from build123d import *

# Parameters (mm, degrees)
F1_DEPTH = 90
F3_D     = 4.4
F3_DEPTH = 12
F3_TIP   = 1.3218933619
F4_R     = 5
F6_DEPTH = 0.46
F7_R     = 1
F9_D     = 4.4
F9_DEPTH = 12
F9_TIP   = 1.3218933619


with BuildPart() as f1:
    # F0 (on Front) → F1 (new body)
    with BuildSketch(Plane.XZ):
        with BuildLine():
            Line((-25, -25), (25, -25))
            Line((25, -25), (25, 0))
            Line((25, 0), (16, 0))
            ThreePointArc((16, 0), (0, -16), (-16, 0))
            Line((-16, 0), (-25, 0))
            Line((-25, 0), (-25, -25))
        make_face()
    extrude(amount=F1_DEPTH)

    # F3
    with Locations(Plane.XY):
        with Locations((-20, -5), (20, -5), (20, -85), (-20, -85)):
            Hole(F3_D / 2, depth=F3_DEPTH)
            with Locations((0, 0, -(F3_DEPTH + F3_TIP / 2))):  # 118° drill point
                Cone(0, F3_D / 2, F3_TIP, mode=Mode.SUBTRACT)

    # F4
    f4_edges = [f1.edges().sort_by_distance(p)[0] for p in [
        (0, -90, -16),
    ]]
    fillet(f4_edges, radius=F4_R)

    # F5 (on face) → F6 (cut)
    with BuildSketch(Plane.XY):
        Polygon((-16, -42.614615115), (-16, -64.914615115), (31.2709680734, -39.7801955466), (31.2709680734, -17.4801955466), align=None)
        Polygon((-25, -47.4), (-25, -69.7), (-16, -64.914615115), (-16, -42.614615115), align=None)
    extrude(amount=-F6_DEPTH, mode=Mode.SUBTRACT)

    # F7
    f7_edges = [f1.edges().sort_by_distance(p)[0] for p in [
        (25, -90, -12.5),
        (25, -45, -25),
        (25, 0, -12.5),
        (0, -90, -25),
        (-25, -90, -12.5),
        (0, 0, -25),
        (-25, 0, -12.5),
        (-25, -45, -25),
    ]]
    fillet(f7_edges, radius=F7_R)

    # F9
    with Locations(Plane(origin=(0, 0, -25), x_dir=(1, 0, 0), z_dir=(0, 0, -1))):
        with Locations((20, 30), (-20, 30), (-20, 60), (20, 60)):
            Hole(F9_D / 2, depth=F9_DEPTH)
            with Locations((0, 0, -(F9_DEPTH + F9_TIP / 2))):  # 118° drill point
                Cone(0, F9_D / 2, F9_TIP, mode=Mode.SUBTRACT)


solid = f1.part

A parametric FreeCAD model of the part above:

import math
import FreeCAD as App
import Part
import Sketcher

V = App.Vector
Q = App.Units.Quantity


def edges_at(feature, points):
    """Names of the edges that pass closest to the given points."""
    edges = feature.Shape.Edges
    near = lambda p: min(range(len(edges)), key=lambda i: edges[i].distToShape(Part.Vertex(*p))[0])
    return sorted({f"Edge{near(p) + 1}" for p in points})


def add_polygon(sketch, points):
    """Adds a closed chain of lines whose ends are joined by coincident constraints."""
    first, n = sketch.GeometryCount, len(points)
    for a, b in zip(points, points[1:] + points[:1]):
        sketch.addGeometry(Part.LineSegment(App.Vector(*a, 0), App.Vector(*b, 0)), False)
    for i in range(n):
        sketch.addConstraint(Sketcher.Constraint("Coincident", first + i, 2, first + (i + 1) % n, 1))

doc = App.newDocument("Part")
params = doc.addObject("Spreadsheet::Sheet", "Params")
for row, (alias, value) in enumerate([
    ("sketch1_radius", "16 mm"),
    ("sketch1_width", "50 mm"),
    ("sketch1_height", "25 mm"),
    ("pad1_length", "90 mm"),
    ("sketch2_diameter", "4.4 mm"),
    ("hole_diameter", "4.4 mm"),
    ("hole_depth", "12 mm"),
    ("fillet_radius", "5 mm"),
    ("sketch3_height", "22.3 mm"),
    ("pocket1_length", "0.46 mm"),
    ("fillet2_radius", "1 mm"),
    ("sketch4_diameter", "4.4 mm"),
    ("hole2_diameter", "4.4 mm"),
    ("hole2_depth", "12 mm"),
], start=1):
    params.set(f"A{row}", alias)
    params.set(f"B{row}", "=" + value)
    params.setAlias(f"B{row}", alias)

body = doc.addObject("PartDesign::Body", "Body")

sketch1 = doc.addObject("Sketcher::SketchObject", "Sketch")
body.addObject(sketch1)
sketch1.AttachmentSupport = (doc.XZ_Plane, [""])
sketch1.MapMode = "FlatFace"
sketch1.addGeometry(Part.LineSegment(V(-25, -25, 0), V(25, -25, 0)), False)
sketch1.addGeometry(Part.LineSegment(V(25, -25, 0), V(25, 0, 0)), False)
sketch1.addGeometry(Part.LineSegment(V(25, 0, 0), V(16, 0, 0)), False)
sketch1.addGeometry(Part.ArcOfCircle(Part.Circle(V(0, 0, 0), V(0, 0, 1), 16), math.radians(180), math.radians(360)), False)
sketch1.addGeometry(Part.LineSegment(V(-16, 0, 0), V(-25, 0, 0)), False)
sketch1.addGeometry(Part.LineSegment(V(-25, 0, 0), V(-25, -25, 0)), False)
sketch1.addConstraint(Sketcher.Constraint("Coincident", 0, 2, 1, 1))
sketch1.addConstraint(Sketcher.Constraint("Coincident", 1, 2, 2, 1))
sketch1.addConstraint(Sketcher.Constraint("Coincident", 2, 2, 3, 2))
sketch1.addConstraint(Sketcher.Constraint("Coincident", 3, 1, 4, 1))
sketch1.addConstraint(Sketcher.Constraint("Coincident", 4, 2, 5, 1))
sketch1.addConstraint(Sketcher.Constraint("Coincident", 5, 2, 0, 1))
sketch1.addConstraint(Sketcher.Constraint("Horizontal", 0))
sketch1.addConstraint(Sketcher.Constraint("Vertical", 1))
sketch1.addConstraint(Sketcher.Constraint("Horizontal", 2))
sketch1.addConstraint(Sketcher.Constraint("Horizontal", 4))
sketch1.addConstraint(Sketcher.Constraint("Vertical", 5))
sketch1.addConstraint(Sketcher.Constraint("Coincident", 3, 3, -1, 1))
sketch1.addConstraint(Sketcher.Constraint("Symmetric", 1, 2, 4, 2, -1, 1))
sketch1.addConstraint(Sketcher.Constraint("PointOnObject", 1, 2, -1))
sketch1.addConstraint(Sketcher.Constraint("Radius", 3, Q("16 mm")))
sketch1.addConstraint(Sketcher.Constraint("DistanceX", 0, 1, 0, 2, Q("50 mm")))
sketch1.addConstraint(Sketcher.Constraint("DistanceY", 1, 1, 1, 2, Q("25 mm")))
sketch1.setExpression("Constraints[14]", "Params.sketch1_radius")
sketch1.setExpression("Constraints[15]", "Params.sketch1_width")
sketch1.setExpression("Constraints[16]", "Params.sketch1_height")
pad1 = doc.addObject("PartDesign::Pad", "Pad")
body.addObject(pad1)
pad1.Profile = sketch1
pad1.setExpression("Length", "Params.pad1_length")

sketch2 = doc.addObject("Sketcher::SketchObject", "Sketch001")
body.addObject(sketch2)
sketch2.AttachmentSupport = (doc.XY_Plane, [""])
sketch2.MapMode = "FlatFace"
sketch2.addGeometry(Part.Circle(V(-20, -5, 0), V(0, 0, 1), 2.2), False)
sketch2.addGeometry(Part.Circle(V(20, -5, 0), V(0, 0, 1), 2.2), False)
sketch2.addGeometry(Part.Circle(V(20, -85, 0), V(0, 0, 1), 2.2), False)
sketch2.addGeometry(Part.Circle(V(-20, -85, 0), V(0, 0, 1), 2.2), False)
sketch2.addConstraint(Sketcher.Constraint("Equal", 0, 1))
sketch2.addConstraint(Sketcher.Constraint("Equal", 1, 2))
sketch2.addConstraint(Sketcher.Constraint("Equal", 2, 3))
sketch2.addConstraint(Sketcher.Constraint("Symmetric", 0, 3, 1, 3, -2))
sketch2.addConstraint(Sketcher.Constraint("Symmetric", 2, 3, 3, 3, -2))
sketch2.addConstraint(Sketcher.Constraint("Vertical", 1, 3, 2, 3))
sketch2.addConstraint(Sketcher.Constraint("Diameter", 0, Q("4.4 mm")))
sketch2.addConstraint(Sketcher.Constraint("DistanceX", 0, 3, -1, 1, Q("20 mm")))
sketch2.addConstraint(Sketcher.Constraint("DistanceY", 0, 3, -1, 1, Q("5 mm")))
sketch2.addConstraint(Sketcher.Constraint("DistanceY", 2, 3, -1, 1, Q("85 mm")))
sketch2.setExpression("Constraints[6]", "Params.sketch2_diameter")
doc.recompute()
hole = doc.addObject("PartDesign::Hole", "Hole")
body.addObject(hole)
hole.Profile = sketch2
hole.ThreadType = "None"
hole.setExpression("Diameter", "Params.hole_diameter")
hole.DepthType = "Dimension"
hole.setExpression("Depth", "Params.hole_depth")
hole.DrillPoint = "Angled"
hole.DrillPointAngle = 118
doc.recompute()

fillet = doc.addObject("PartDesign::Fillet", "Fillet")
body.addObject(fillet)
fillet.Base = (hole, edges_at(hole, [(0, -90, -16)]))
fillet.setExpression("Radius", "Params.fillet_radius")

sketch3 = doc.addObject("Sketcher::SketchObject", "Sketch002")
body.addObject(sketch3)
sketch3.AttachmentSupport = (doc.XY_Plane, [""])
sketch3.MapMode = "FlatFace"
add_polygon(sketch3, [(-16, -65), (31, -40), (31, -17), (-16, -43), (-25, -47), (-25, -70)])
sketch3.addConstraint(Sketcher.Constraint("Vertical", 1))
sketch3.addConstraint(Sketcher.Constraint("Vertical", 4))
sketch3.addConstraint(Sketcher.Constraint("Parallel", 0, 2))
sketch3.addConstraint(Sketcher.Constraint("Parallel", 2, 3))
sketch3.addConstraint(Sketcher.Constraint("Parallel", 3, 5))
sketch3.addConstraint(Sketcher.Constraint("Vertical", 2, 2, 5, 2))
sketch3.addConstraint(Sketcher.Constraint("Angle", 0, Q("28 deg")))
sketch3.addConstraint(Sketcher.Constraint("DistanceY", 1, 1, 1, 2, Q("22.3 mm")))
sketch3.addConstraint(Sketcher.Constraint("DistanceX", 2, 2, -1, 1, Q("16 mm")))
sketch3.addConstraint(Sketcher.Constraint("DistanceX", 3, 2, -1, 1, Q("25 mm")))
sketch3.addConstraint(Sketcher.Constraint("DistanceY", 3, 2, -1, 1, Q("47.4 mm")))
sketch3.addConstraint(Sketcher.Constraint("DistanceX", -1, 1, 0, 2, Q("31.270968 mm")))
sketch3.setExpression("Constraints[13]", "Params.sketch3_height")
pocket1 = doc.addObject("PartDesign::Pocket", "Pocket")
body.addObject(pocket1)
pocket1.Profile = sketch3
pocket1.setExpression("Length", "Params.pocket1_length")
doc.recompute()

fillet2 = doc.addObject("PartDesign::Fillet", "Fillet001")
body.addObject(fillet2)
fillet2.Base = (pocket1, edges_at(pocket1, [
    (25, -90, -12.5),
    (25, -45, -25),
    (25, 0, -12.5),
    (0, -90, -25),
    (-25, -90, -12.5),
    (0, 0, -25),
    (-25, 0, -12.5),
    (-25, -45, -25),
]))
fillet2.setExpression("Radius", "Params.fillet2_radius")

sketch4 = doc.addObject("Sketcher::SketchObject", "Sketch003")
body.addObject(sketch4)
sketch4.AttachmentSupport = (doc.XY_Plane, [""])
sketch4.MapMode = "FlatFace"
sketch4.AttachmentOffset = App.Placement(V(0, 0, -25), App.Rotation())
sketch4.addGeometry(Part.Circle(V(20, -30, 0), V(0, 0, 1), 2.2), False)
sketch4.addGeometry(Part.Circle(V(-20, -30, 0), V(0, 0, 1), 2.2), False)
sketch4.addGeometry(Part.Circle(V(-20, -60, 0), V(0, 0, 1), 2.2), False)
sketch4.addGeometry(Part.Circle(V(20, -60, 0), V(0, 0, 1), 2.2), False)
sketch4.addConstraint(Sketcher.Constraint("Equal", 0, 1))
sketch4.addConstraint(Sketcher.Constraint("Equal", 1, 2))
sketch4.addConstraint(Sketcher.Constraint("Equal", 2, 3))
sketch4.addConstraint(Sketcher.Constraint("Symmetric", 0, 3, 1, 3, -2))
sketch4.addConstraint(Sketcher.Constraint("Symmetric", 2, 3, 3, 3, -2))
sketch4.addConstraint(Sketcher.Constraint("Vertical", 1, 3, 2, 3))
sketch4.addConstraint(Sketcher.Constraint("Diameter", 0, Q("4.4 mm")))
sketch4.addConstraint(Sketcher.Constraint("DistanceX", -1, 1, 0, 3, Q("20 mm")))
sketch4.addConstraint(Sketcher.Constraint("DistanceY", 0, 3, -1, 1, Q("30 mm")))
sketch4.addConstraint(Sketcher.Constraint("DistanceY", 2, 3, -1, 1, Q("60 mm")))
sketch4.setExpression("Constraints[6]", "Params.sketch4_diameter")
doc.recompute()
hole2 = doc.addObject("PartDesign::Hole", "Hole001")
body.addObject(hole2)
hole2.Profile = sketch4
hole2.ThreadType = "None"
hole2.setExpression("Diameter", "Params.hole2_diameter")
hole2.DepthType = "Dimension"
hole2.setExpression("Depth", "Params.hole2_depth")
hole2.DrillPoint = "Angled"
hole2.DrillPointAngle = 118
hole2.Reversed = True

doc.recompute()
